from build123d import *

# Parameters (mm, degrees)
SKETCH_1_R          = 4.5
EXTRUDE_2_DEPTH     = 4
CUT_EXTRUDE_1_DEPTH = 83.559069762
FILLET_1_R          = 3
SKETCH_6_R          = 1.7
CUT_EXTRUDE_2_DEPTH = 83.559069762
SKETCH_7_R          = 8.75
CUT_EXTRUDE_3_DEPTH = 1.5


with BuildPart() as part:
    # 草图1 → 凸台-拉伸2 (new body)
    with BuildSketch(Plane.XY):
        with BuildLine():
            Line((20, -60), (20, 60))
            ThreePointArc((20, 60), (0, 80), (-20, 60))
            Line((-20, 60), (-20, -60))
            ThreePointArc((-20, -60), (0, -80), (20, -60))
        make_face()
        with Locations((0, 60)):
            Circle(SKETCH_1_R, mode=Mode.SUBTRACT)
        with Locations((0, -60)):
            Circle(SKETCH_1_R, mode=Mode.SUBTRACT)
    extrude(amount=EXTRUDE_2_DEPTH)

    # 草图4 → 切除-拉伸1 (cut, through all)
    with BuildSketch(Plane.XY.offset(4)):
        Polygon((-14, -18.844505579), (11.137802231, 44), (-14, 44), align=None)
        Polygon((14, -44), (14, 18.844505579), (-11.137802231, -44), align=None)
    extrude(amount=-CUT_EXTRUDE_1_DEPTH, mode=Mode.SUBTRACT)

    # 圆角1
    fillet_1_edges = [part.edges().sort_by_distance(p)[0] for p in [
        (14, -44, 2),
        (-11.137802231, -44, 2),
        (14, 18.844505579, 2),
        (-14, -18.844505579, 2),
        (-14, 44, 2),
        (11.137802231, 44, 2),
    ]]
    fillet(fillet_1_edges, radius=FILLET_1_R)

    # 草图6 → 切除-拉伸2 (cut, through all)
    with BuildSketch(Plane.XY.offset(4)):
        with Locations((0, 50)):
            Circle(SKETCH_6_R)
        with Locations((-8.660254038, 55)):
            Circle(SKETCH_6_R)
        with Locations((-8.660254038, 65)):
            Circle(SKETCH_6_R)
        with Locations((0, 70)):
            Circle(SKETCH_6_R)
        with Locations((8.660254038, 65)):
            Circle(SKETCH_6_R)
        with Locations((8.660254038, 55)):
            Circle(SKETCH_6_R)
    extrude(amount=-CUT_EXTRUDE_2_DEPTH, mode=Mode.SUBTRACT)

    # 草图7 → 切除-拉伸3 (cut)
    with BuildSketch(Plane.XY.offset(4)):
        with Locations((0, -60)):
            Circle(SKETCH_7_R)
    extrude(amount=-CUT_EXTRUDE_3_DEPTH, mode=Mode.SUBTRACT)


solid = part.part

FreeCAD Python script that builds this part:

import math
import FreeCAD as App
import Part
import Sketcher
from FreeCAD import Vector


def edges_at(feature, points):
    """Names of the edges that pass closest to the given points."""
    edges = feature.Shape.Edges
    near = lambda p: min(range(len(edges)), key=lambda i: edges[i].distToShape(Part.Vertex(*p))[0])
    return sorted({f"Edge{near(p) + 1}" for p in points})

doc = App.newDocument("Part")
params = doc.addObject("Spreadsheet::Sheet", "Params")
for row, (alias, value) in enumerate([
    ("sketch1_diameter", "9 mm"),
    ("sketch1_radius", "20 mm"),
    ("sketch1_height", "120 mm"),
    ("pad1_length", "4 mm"),
    ("fillet_radius", "3 mm"),
    ("sketch3_diameter", "3.4 mm"),
    ("sketch4_diameter", "17.5 mm"),
    ("pocket3_length", "1.5 mm"),
], start=1):
    params.set(f"A{row}", alias)
    params.set(f"B{row}", "=" + value)
    params.setAlias(f"B{row}", alias)

body = doc.addObject("PartDesign::Body", "Body")

# Sketch on XY plane
sketch1 = body.newObject("Sketcher::SketchObject", "Sketch")
sketch1.AttachmentSupport = (doc.getObject("XY_Plane"), [""])
sketch1.MapMode = "FlatFace"
sketch1.addGeometry(Part.LineSegment(Vector(20, -60, 0), Vector(20, 60, 0)), False)
sketch1.addGeometry(Part.ArcOfCircle(Part.Circle(Vector(0, 60, 0), Vector(0, 0, 1), 20), math.radians(0), math.radians(180)), False)
sketch1.addGeometry(Part.LineSegment(Vector(-20, 60, 0), Vector(-20, -60, 0)), False)
sketch1.addGeometry(Part.ArcOfCircle(Part.Circle(Vector(0, -60, 0), Vector(0, 0, 1), 20), math.radians(180), math.radians(360)), False)
sketch1.addGeometry(Part.Circle(Vector(0, -60, 0), Vector(0, 0, 1), 4.5), False)
sketch1.addGeometry(Part.Circle(Vector(0, 60, 0), Vector(0, 0, 1), 4.5), False)
sketch1.addConstraint(Sketcher.Constraint("Tangent", 0, 2, 1, 1))
sketch1.addConstraint(Sketcher.Constraint("Tangent", 1, 2, 2, 1))
sketch1.addConstraint(Sketcher.Constraint("Tangent", 2, 2, 3, 1))
sketch1.addConstraint(Sketcher.Constraint("Tangent", 3, 2, 0, 1))
sketch1.addConstraint(Sketcher.Constraint("Vertical", 0))
sketch1.addConstraint(Sketcher.Constraint("Vertical", 2))
sketch1.addConstraint(Sketcher.Constraint("Coincident", 4, 3, 3, 3))
sketch1.addConstraint(Sketcher.Constraint("Coincident", 5, 3, 1, 3))
sketch1.addConstraint(Sketcher.Constraint("Equal", 4, 5))
sketch1.addConstraint(Sketcher.Constraint("Symmetric", 1, 3, 3, 3, -1, 1))
sketch1.addConstraint(Sketcher.Constraint("Diameter", 4, 9.0))
sketch1.addConstraint(Sketcher.Constraint("Radius", 1, 20.0))
sketch1.addConstraint(Sketcher.Constraint("DistanceY", 0, 1, 0, 2, 120.0))
sketch1.setExpression("Constraints[10]", "Params.sketch1_diameter")
sketch1.setExpression("Constraints[11]", "Params.sketch1_radius")
sketch1.setExpression("Constraints[12]", "Params.sketch1_height")
pad1 = body.newObject("PartDesign::Pad", "Pad")
pad1.Profile = sketch1
pad1.setExpression("Length", "Params.pad1_length")

# Sketch on XY plane
sketch2 = body.newObject("Sketcher::SketchObject", "Sketch001")
sketch2.AttachmentSupport = (doc.getObject("XY_Plane"), [""])
sketch2.MapMode = "FlatFace"
sketch2.AttachmentOffset = App.Placement(Vector(0, 0, 4), App.Rotation())
sketch2.addGeometry(Part.LineSegment(Vector(-14, -19, 0), Vector(11, 44, 0)), False)
sketch2.addGeometry(Part.LineSegment(Vector(11, 44, 0), Vector(-14, 44, 0)), False)
sketch2.addGeometry(Part.LineSegment(Vector(-14, 44, 0), Vector(-14, -19, 0)), False)
sketch2.addGeometry(Part.LineSegment(Vector(14, -44, 0), Vector(14, 19, 0)), False)
sketch2.addGeometry(Part.LineSegment(Vector(14, 19, 0), Vector(-11, -44, 0)), False)
sketch2.addGeometry(Part.LineSegment(Vector(-11, -44, 0), Vector(14, -44, 0)), False)
sketch2.addConstraint(Sketcher.Constraint("Coincident", 0, 2, 1, 1))
sketch2.addConstraint(Sketcher.Constraint("Coincident", 1, 2, 2, 1))
sketch2.addConstraint(Sketcher.Constraint("Coincident", 2, 2, 0, 1))
sketch2.addConstraint(Sketcher.Constraint("Coincident", 3, 2, 4, 1))
sketch2.addConstraint(Sketcher.Constraint("Coincident", 4, 2, 5, 1))
sketch2.addConstraint(Sketcher.Constraint("Coincident", 5, 2, 3, 1))
sketch2.addConstraint(Sketcher.Constraint("Horizontal", 1))
sketch2.addConstraint(Sketcher.Constraint("Vertical", 2))
sketch2.addConstraint(Sketcher.Constraint("Vertical", 3))
sketch2.addConstraint(Sketcher.Constraint("Horizontal", 5))
sketch2.addConstraint(Sketcher.Constraint("Symmetric", 2, 2, 3, 2, -1, 1))
sketch2.addConstraint(Sketcher.Constraint("Symmetric", 0, 2, 4, 2, -1, 1))
sketch2.addConstraint(Sketcher.Constraint("DistanceY", -1, 1, 0, 2, 44.0))
sketch2.addConstraint(Sketcher.Constraint("DistanceX", 1, 2, -1, 1, 14.0))
sketch2.addConstraint(Sketcher.Constraint("DistanceX", 1, 2, 1, 1, 25.137802))
sketch2.addConstraint(Sketcher.Constraint("DistanceY", 2, 2, 2, 1, 62.844506))
pocket1 = body.newObject("PartDesign::Pocket", "Pocket")
pocket1.Profile = sketch2
pocket1.Type = "ThroughAll"
doc.recompute()

fillet = body.newObject("PartDesign::Fillet", "Fillet")
fillet.Base = (pocket1, edges_at(pocket1, [
    (14, -44, 2),
    (-11.138, -44, 2),
    (14, 18.845, 2),
    (-14, -18.845, 2),
    (-14, 44, 2),
    (11.138, 44, 2),
]))
fillet.setExpression("Radius", "Params.fillet_radius")

# Sketch on XY plane
sketch3 = body.newObject("Sketcher::SketchObject", "Sketch002")
sketch3.AttachmentSupport = (doc.getObject("XY_Plane"), [""])
sketch3.MapMode = "FlatFace"
sketch3.AttachmentOffset = App.Placement(Vector(0, 0, 4), App.Rotation())
sketch3.addGeometry(Part.Circle(Vector(0, 50, 0), Vector(0, 0, 1), 1.7), False)
sketch3.addGeometry(Part.Circle(Vector(-8.7, 55, 0), Vector(0, 0, 1), 1.7), False)
sketch3.addGeometry(Part.Circle(Vector(-8.7, 65, 0), Vector(0, 0, 1), 1.7), False)
sketch3.addGeometry(Part.Circle(Vector(0, 70, 0), Vector(0, 0, 1), 1.7), False)
sketch3.addGeometry(Part.Circle(Vector(8.7, 65, 0), Vector(0, 0, 1), 1.7), False)
sketch3.addGeometry(Part.Circle(Vector(8.7, 55, 0), Vector(0, 0, 1), 1.7), False)
sketch3.addConstraint(Sketcher.Constraint("Equal", 0, 1))
sketch3.addConstraint(Sketcher.Constraint("Equal", 1, 2))
sketch3.addConstraint(Sketcher.Constraint("Equal", 2, 3))
sketch3.addConstraint(Sketcher.Constraint("Equal", 3, 4))
sketch3.addConstraint(Sketcher.Constraint("Equal", 4, 5))
sketch3.addConstraint(Sketcher.Constraint("Symmetric", 2, 3, 4, 3, -2))
sketch3.addConstraint(Sketcher.Constraint("Symmetric", 1, 3, 5, 3, -2))
sketch3.addConstraint(Sketcher.Constraint("PointOnObject", 0, 3, -2))
sketch3.addConstraint(Sketcher.Constraint("PointOnObject", 3, 3, -2))
sketch3.addConstraint(Sketcher.Constraint("Vertical", 1, 3, 2, 3))
sketch3.addConstraint(Sketcher.Constraint("Diameter", 0, 3.4))
sketch3.addConstraint(Sketcher.Constraint("DistanceY", -1, 1, 0, 3, 50.0))
sketch3.addConstraint(Sketcher.Constraint("DistanceY", -1, 1, 1, 3, 55.0))
sketch3.addConstraint(Sketcher.Constraint("DistanceY", -1, 1, 2, 3, 65.0))
sketch3.addConstraint(Sketcher.Constraint("DistanceY", -1, 1, 3, 3, 70.0))
sketch3.addConstraint(Sketcher.Constraint("DistanceX", 2, 3, 4, 3, 17.320508))
sketch3.setExpression("Constraints[10]", "Params.sketch3_diameter")
pocket2 = body.newObject("PartDesign::Pocket", "Pocket001")
pocket2.Profile = sketch3
pocket2.Type = "ThroughAll"

# Sketch on XY plane
sketch4 = body.newObject("Sketcher::SketchObject", "Sketch003")
sketch4.AttachmentSupport = (doc.getObject("XY_Plane"), [""])
sketch4.MapMode = "FlatFace"
sketch4.AttachmentOffset = App.Placement(Vector(0, 0, 4), App.Rotation())
sketch4.addGeometry(Part.Circle(Vector(0, -60, 0), Vector(0, 0, 1), 9), False)
sketch4.addConstraint(Sketcher.Constraint("PointOnObject", 0, 3, -2))
sketch4.addConstraint(Sketcher.Constraint("Diameter", 0, 17.5))
sketch4.addConstraint(Sketcher.Constraint("DistanceY", 0, 3, -1, 1, 60.0))
sketch4.setExpression("Constraints[1]", "Params.sketch4_diameter")
pocket3 = body.newObject("PartDesign::Pocket", "Pocket002")
pocket3.Profile = sketch4
pocket3.setExpression("Length", "Params.pocket3_length")

doc.recompute()
